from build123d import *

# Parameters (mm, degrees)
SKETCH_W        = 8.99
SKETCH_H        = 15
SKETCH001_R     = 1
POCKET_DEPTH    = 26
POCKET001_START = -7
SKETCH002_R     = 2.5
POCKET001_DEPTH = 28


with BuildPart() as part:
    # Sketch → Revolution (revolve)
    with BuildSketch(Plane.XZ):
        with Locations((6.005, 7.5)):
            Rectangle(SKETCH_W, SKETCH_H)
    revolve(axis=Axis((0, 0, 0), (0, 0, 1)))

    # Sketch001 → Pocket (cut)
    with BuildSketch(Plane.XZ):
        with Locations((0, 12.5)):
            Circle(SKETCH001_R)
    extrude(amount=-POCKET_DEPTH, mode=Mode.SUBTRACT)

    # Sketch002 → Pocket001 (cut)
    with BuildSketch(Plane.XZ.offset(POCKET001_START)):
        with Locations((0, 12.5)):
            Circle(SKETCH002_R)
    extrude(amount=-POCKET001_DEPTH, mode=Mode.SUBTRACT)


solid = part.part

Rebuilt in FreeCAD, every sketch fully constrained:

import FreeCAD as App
import Part
import Sketcher
from FreeCAD import Vector
Q = App.Units.Quantity


def add_polygon(sketch, points):
    """Adds a closed chain of lines whose ends are joined by coincident constraints."""
    first, n = sketch.GeometryCount, len(points)
    for a, b in zip(points, points[1:] + points[:1]):
        sketch.addGeometry(Part.LineSegment(App.Vector(*a, 0), App.Vector(*b, 0)), False)
    for i in range(n):
        sketch.addConstraint(Sketcher.Constraint("Coincident", first + i, 2, first + (i + 1) % n, 1))

doc = App.newDocument("Part")
body = doc.addObject("PartDesign::Body", "Body")

# Sketch on XZ plane
sketch1 = body.newObject("Sketcher::SketchObject", "Sketch")
sketch1.AttachmentSupport = (doc.getObject("XZ_Plane"), [""])
sketch1.MapMode = "FlatFace"
add_polygon(sketch1, [(2, 15), (2, 0), (10, 0), (10, 15)])  # lines 0-3
sketch1.addConstraint([
    Sketcher.Constraint("Vertical", 0),
    Sketcher.Constraint("Horizontal", 1),
    Sketcher.Constraint("Vertical", 2),
    Sketcher.Constraint("Horizontal", 3),
    Sketcher.Constraint("PointOnObject", 0, 2, -1),
    Sketcher.Constraint("DistanceY", 0, 2, 0, 1, Q("15 mm")),
    Sketcher.Constraint("DistanceX", 1, 1, 1, 2, Q("8.99 mm")),
    Sketcher.Constraint("DistanceX", -1, 1, 1, 2, Q("10.5 mm")),
])
revolution = body.newObject("PartDesign::Revolution", "Revolution")
revolution.Profile = sketch1
revolution.ReferenceAxis = (sketch1, ["V_Axis"])
revolution.Angle = 360

# Sketch on XZ plane
sketch2 = body.newObject("Sketcher::SketchObject", "Sketch001")
sketch2.AttachmentSupport = (doc.getObject("XZ_Plane"), [""])
sketch2.MapMode = "FlatFace"
sketch2.addGeometry(Part.Circle(Vector(0, 12.5, 0), Vector(0, 0, 1), 1), False)
sketch2.addConstraint([
    Sketcher.Constraint("PointOnObject", 0, 3, -2),
    Sketcher.Constraint("Diameter", 0, Q("2 mm")),
    Sketcher.Constraint("DistanceY", -1, 1, 0, 3, Q("12.5 mm")),
])
pocket1 = body.newObject("PartDesign::Pocket", "Pocket")
pocket1.Profile = sketch2
pocket1.Length = 26

# Sketch on XZ plane
sketch3 = body.newObject("Sketcher::SketchObject", "Sketch002")
sketch3.AttachmentSupport = (doc.getObject("XZ_Plane"), [""])
sketch3.MapMode = "FlatFace"
sketch3.AttachmentOffset = App.Placement(Vector(0, 0, -7), App.Rotation())
sketch3.addGeometry(Part.Circle(Vector(0, 12.5, 0), Vector(0, 0, 1), 2.5), False)
sketch3.addConstraint([
    Sketcher.Constraint("PointOnObject", 0, 3, -2),
    Sketcher.Constraint("Diameter", 0, Q("5 mm")),
    Sketcher.Constraint("DistanceY", -1, 1, 0, 3, Q("12.5 mm")),
])
pocket2 = body.newObject("PartDesign::Pocket", "Pocket001")
pocket2.Profile = sketch3
pocket2.Length = 28

doc.recompute()
